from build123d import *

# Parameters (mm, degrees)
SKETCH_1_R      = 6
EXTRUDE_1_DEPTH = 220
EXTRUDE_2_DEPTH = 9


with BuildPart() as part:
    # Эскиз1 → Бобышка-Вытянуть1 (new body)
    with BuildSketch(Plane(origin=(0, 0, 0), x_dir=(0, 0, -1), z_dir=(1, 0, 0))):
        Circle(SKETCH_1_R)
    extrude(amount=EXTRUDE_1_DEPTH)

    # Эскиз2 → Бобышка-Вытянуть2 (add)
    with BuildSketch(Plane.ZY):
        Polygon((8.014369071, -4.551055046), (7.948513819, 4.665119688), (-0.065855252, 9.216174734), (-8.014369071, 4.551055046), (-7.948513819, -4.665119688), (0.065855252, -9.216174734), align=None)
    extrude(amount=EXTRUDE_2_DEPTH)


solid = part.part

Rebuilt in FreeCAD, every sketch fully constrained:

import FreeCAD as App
import Part
import Sketcher


def add_polygon(sketch, points):
    """Adds a closed chain of lines whose ends are joined by coincident constraints."""
    first, n = sketch.GeometryCount, len(points)
    for a, b in zip(points, points[1:] + points[:1]):
        sketch.addGeometry(Part.LineSegment(App.Vector(*a, 0), App.Vector(*b, 0)), False)
    for i in range(n):
        sketch.addConstraint(Sketcher.Constraint("Coincident", first + i, 2, first + (i + 1) % n, 1))

doc = App.newDocument("Part")
body = doc.addObject("PartDesign::Body", "Body")

# Sketch on YZ plane
sketch1 = body.newObject("Sketcher::SketchObject", "Sketch")
sketch1.AttachmentSupport = (doc.getObject("YZ_Plane"), [""])
sketch1.MapMode = "FlatFace"
sketch1.addGeometry(Part.Circle(App.Vector(0, 0, 0), App.Vector(0, 0, 1), 6), False)
sketch1.addConstraint([
    Sketcher.Constraint("Coincident", 0, 3, -1, 1),
    Sketcher.Constraint("Diameter", 0, 12.0),
])
pad1 = body.newObject("PartDesign::Pad", "Pad")
pad1.Profile = sketch1
pad1.Length = 220

# Sketch on YZ plane
sketch2 = body.newObject("Sketcher::SketchObject", "Sketch001")
sketch2.AttachmentSupport = (doc.getObject("YZ_Plane"), [""])
sketch2.MapMode = "FlatFace"
add_polygon(sketch2, [(-4.551055, 8.014369), (4.66512, 7.948514), (9.216175, -0.065855), (4.551055, -8.014369), (-4.66512, -7.948514), (-9.216175, 0.065855)])  # lines 0-5
sketch2.addConstraint([
    Sketcher.Constraint("Symmetric", 0, 2, 3, 2, -1, 1),
    Sketcher.Constraint("Symmetric", 1, 2, 4, 2, -1, 1),
    Sketcher.Constraint("Symmetric", 2, 2, 5, 2, -1, 1),
    Sketcher.Constraint("Equal", 0, 1),
    Sketcher.Constraint("Equal", 1, 2),
    Sketcher.Constraint("Distance", 0, 9.21641),
    Sketcher.Constraint("DistanceX", -1, 1, 0, 2, 4.66512),
    Sketcher.Constraint("DistanceY", 2, 2, -1, 1, 8.014369),
    Sketcher.Constraint("DistanceY", 1, 2, 0, 2, 8.014369),
])
pad2 = body.newObject("PartDesign::Pad", "Pad001")
pad2.Profile = sketch2
pad2.Length = 9
pad2.Reversed = True

doc.recompute()
